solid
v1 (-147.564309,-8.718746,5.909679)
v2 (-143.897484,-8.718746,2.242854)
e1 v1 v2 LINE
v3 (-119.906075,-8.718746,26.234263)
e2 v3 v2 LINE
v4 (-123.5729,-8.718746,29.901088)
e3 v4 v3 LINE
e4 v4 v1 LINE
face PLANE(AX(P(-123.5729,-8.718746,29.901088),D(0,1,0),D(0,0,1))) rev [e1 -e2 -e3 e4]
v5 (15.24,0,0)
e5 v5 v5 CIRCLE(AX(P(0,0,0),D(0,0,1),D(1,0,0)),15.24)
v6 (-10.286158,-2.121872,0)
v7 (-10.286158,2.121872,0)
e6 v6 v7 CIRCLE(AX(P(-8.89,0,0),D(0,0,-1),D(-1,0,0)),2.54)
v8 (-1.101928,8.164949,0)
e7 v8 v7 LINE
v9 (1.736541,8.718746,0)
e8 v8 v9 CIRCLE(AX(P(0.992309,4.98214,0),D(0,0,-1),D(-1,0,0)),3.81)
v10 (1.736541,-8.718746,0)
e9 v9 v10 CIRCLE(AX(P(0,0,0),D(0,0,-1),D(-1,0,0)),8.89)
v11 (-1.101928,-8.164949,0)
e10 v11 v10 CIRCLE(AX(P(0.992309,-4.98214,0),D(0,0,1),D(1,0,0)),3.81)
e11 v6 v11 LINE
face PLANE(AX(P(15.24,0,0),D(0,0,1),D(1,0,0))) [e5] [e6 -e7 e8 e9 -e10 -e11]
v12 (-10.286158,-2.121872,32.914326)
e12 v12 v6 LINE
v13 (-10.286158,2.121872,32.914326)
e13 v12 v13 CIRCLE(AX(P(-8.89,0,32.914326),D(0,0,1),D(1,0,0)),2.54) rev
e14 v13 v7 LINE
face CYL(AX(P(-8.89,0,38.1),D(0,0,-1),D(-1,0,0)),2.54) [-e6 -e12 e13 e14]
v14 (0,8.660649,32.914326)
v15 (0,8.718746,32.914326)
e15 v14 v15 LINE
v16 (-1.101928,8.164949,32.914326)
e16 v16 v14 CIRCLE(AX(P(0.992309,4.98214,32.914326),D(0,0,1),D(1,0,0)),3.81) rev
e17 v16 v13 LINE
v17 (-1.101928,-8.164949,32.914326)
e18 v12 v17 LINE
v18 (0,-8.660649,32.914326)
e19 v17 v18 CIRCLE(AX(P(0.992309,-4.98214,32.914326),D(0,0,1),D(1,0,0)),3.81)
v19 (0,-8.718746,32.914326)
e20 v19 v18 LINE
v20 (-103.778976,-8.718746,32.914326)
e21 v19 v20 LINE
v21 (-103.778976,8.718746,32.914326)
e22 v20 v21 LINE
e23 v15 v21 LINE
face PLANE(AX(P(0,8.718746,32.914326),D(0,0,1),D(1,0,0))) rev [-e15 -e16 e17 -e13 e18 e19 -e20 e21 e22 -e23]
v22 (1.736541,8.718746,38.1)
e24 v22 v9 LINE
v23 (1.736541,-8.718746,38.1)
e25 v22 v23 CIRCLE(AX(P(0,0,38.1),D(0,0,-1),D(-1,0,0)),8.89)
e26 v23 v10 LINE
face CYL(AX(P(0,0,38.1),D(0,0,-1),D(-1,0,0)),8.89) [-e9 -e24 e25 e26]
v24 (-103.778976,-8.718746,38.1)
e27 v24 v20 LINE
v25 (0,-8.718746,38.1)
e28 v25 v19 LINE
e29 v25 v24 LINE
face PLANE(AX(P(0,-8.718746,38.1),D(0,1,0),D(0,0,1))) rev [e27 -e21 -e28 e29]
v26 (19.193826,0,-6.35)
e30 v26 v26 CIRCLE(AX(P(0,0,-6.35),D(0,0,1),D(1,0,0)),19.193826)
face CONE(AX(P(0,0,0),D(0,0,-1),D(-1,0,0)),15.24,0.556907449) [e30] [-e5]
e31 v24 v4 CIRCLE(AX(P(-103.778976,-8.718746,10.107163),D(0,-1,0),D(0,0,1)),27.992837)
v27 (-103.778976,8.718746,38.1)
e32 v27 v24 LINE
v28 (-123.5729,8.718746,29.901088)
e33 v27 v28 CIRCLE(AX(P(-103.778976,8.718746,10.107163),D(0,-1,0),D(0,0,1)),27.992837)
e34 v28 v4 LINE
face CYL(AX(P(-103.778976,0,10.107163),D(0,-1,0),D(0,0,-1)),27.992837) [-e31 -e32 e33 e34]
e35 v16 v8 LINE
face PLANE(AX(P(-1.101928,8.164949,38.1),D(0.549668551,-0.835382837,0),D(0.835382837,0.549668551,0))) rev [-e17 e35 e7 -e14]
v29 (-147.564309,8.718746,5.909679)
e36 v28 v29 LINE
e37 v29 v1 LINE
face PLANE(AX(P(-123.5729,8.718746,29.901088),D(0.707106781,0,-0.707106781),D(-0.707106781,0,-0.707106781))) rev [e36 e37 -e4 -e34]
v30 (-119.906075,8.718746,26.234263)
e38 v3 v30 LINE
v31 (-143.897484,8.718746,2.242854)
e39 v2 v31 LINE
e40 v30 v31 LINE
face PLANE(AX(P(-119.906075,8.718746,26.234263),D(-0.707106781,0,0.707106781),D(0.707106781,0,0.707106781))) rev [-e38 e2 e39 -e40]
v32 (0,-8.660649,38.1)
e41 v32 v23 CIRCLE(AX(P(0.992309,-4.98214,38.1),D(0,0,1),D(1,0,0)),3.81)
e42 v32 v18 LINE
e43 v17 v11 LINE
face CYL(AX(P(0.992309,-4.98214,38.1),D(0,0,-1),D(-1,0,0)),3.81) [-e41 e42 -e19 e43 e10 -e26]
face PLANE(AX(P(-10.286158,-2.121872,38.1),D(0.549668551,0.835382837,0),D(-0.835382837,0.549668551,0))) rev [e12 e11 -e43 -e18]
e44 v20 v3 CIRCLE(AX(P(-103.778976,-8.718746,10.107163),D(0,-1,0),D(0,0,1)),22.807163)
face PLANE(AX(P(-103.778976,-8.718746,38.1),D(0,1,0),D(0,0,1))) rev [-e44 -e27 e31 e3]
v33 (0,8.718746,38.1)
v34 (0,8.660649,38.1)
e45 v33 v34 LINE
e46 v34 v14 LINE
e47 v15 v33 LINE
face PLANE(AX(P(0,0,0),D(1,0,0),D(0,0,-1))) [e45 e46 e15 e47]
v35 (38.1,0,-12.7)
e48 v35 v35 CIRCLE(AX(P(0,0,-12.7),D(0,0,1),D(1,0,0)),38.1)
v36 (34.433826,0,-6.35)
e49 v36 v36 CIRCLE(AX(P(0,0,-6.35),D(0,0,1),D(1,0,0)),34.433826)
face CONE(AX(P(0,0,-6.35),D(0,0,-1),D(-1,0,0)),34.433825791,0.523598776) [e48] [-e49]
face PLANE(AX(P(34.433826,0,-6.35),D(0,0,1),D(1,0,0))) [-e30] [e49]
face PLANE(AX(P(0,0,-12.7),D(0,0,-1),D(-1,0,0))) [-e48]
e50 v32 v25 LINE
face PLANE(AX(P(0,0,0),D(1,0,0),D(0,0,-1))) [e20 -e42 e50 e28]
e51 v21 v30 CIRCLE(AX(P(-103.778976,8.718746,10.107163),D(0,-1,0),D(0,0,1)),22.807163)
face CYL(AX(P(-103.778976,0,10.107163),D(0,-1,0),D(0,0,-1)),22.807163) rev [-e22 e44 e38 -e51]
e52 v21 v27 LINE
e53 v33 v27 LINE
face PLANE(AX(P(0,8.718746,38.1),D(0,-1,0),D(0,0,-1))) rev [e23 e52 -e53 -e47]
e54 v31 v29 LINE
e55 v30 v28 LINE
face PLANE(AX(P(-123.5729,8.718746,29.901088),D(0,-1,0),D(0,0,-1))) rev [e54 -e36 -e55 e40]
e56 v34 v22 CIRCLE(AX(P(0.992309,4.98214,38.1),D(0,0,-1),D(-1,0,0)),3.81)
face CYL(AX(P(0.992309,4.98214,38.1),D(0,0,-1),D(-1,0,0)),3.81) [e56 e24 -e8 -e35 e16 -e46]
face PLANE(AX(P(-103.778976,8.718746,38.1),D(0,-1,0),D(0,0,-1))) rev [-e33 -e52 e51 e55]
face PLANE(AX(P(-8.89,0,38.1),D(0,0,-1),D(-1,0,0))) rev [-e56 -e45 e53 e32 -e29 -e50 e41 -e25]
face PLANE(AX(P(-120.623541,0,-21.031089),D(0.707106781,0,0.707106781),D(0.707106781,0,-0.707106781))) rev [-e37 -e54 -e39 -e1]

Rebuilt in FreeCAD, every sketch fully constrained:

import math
import FreeCAD as App
import Part
import Sketcher
Q = App.Units.Quantity

doc = App.newDocument("Part")
body = doc.addObject("PartDesign::Body", "Body")

# Sketch on XZ plane
sketch1 = body.newObject("Sketcher::SketchObject", "Sketch")
sketch1.AttachmentSupport = (doc.getObject("XZ_Plane"), [""])
sketch1.MapMode = "FlatFace"
sketch1.addGeometry([
    Part.LineSegment(App.Vector(0, -13, 0), App.Vector(0, 0, 0)),  # 0
    Part.LineSegment(App.Vector(0, 0, 0), App.Vector(15, 0, 0)),  # 1
    Part.LineSegment(App.Vector(15, 0, 0), App.Vector(19, -6, 0)),  # 2
    Part.LineSegment(App.Vector(19, -6, 0), App.Vector(34, -6, 0)),  # 3
    Part.LineSegment(App.Vector(34, -6, 0), App.Vector(38, -13, 0)),  # 4
    Part.LineSegment(App.Vector(38, -13, 0), App.Vector(0, -13, 0)),  # 5
], False)
sketch1.addConstraint([
    Sketcher.Constraint("Coincident", 0, 2, 1, 1),
    Sketcher.Constraint("Coincident", 1, 2, 2, 1),
    Sketcher.Constraint("Coincident", 2, 2, 3, 1),
    Sketcher.Constraint("Coincident", 3, 2, 4, 1),
    Sketcher.Constraint("Coincident", 4, 2, 5, 1),
    Sketcher.Constraint("Coincident", 5, 2, 0, 1),
    Sketcher.Constraint("Vertical", 0),
    Sketcher.Constraint("Horizontal", 1),
    Sketcher.Constraint("Horizontal", 3),
    Sketcher.Constraint("Horizontal", 5),
    Sketcher.Constraint("Coincident", 0, 2, -1, 1),
    Sketcher.Constraint("Equal", 1, 3),
    Sketcher.Constraint("DistanceX", 1, 1, 1, 2, Q("0.6 in")),
    Sketcher.Constraint("DistanceX", 5, 2, 5, 1, Q("1.5 in")),
    Sketcher.Constraint("DistanceY", 0, 1, 0, 2, Q("0.5 in")),
    Sketcher.Constraint("Angle", 4, Q("-60 deg")),
    Sketcher.Constraint("DistanceY", 2, 2, -1, 1, Q("0.25 in")),
])
revolution = body.newObject("PartDesign::Revolution", "Revolution")
revolution.Profile = sketch1
revolution.ReferenceAxis = (sketch1, ["V_Axis"])
revolution.Angle = 360

# Sketch on XY plane
sketch2 = body.newObject("Sketcher::SketchObject", "Sketch001")
sketch2.AttachmentSupport = (doc.getObject("XY_Plane"), [""])
sketch2.MapMode = "FlatFace"
sketch2.addGeometry([
    Part.LineSegment(App.Vector(-1.1, 8.2, 0), App.Vector(-10.3, 2.1, 0)),  # 0
    Part.ArcOfCircle(Part.Circle(App.Vector(-8.9, 0, 0), App.Vector(0, 0, 1), 2.5), math.radians(123), math.radians(237)),  # 1
    Part.LineSegment(App.Vector(-10.3, -2.1, 0), App.Vector(-1.1, -8.2, 0)),  # 2
    Part.ArcOfCircle(Part.Circle(App.Vector(1, -5, 0), App.Vector(0, 0, 1), 3.8), math.radians(-123), math.radians(-79)),  # 3
    Part.ArcOfCircle(Part.Circle(App.Vector(0, 0, 0), App.Vector(0, 0, 1), 8.9), math.radians(-79), math.radians(79)),  # 4
    Part.ArcOfCircle(Part.Circle(App.Vector(1, 5, 0), App.Vector(0, 0, 1), 3.8), math.radians(79), math.radians(123)),  # 5
], False)
sketch2.addConstraint([
    Sketcher.Constraint("Tangent", 0, 2, 1, 1),
    Sketcher.Constraint("Tangent", 1, 2, 2, 1),
    Sketcher.Constraint("Tangent", 2, 2, 3, 1),
    Sketcher.Constraint("Tangent", 3, 2, 4, 1),
    Sketcher.Constraint("Tangent", 4, 2, 5, 1),
    Sketcher.Constraint("Tangent", 5, 2, 0, 1),
    Sketcher.Constraint("Coincident", 4, 3, -1, 1),
    Sketcher.Constraint("Equal", 3, 5),
    Sketcher.Constraint("Symmetric", 0, 2, 1, 2, -1),
    Sketcher.Constraint("Radius", 1, Q("0.1 in")),
    Sketcher.Constraint("Radius", 3, Q("0.15 in")),
    Sketcher.Constraint("Radius", 4, Q("0.35 in")),
    Sketcher.Constraint("DistanceX", 1, 3, -1, 1, Q("0.35 in")),
    Sketcher.Constraint("DistanceX", 1, 2, 3, 2, Q("12.022699 mm")),
])
pad1 = body.newObject("PartDesign::Pad", "Pad")
pad1.Profile = sketch2
pad1.Length = Q("1.5 in")

# Sketch on YZ plane
sketch3 = body.newObject("Sketcher::SketchObject", "Sketch002")
sketch3.AttachmentSupport = (doc.getObject("YZ_Plane"), [""])
sketch3.MapMode = "FlatFace"
sketch3.addGeometry([
    Part.LineSegment(App.Vector(9, 38, 0), App.Vector(-9, 38, 0)),
    Part.LineSegment(App.Vector(-9, 38, 0), App.Vector(-9, 33, 0)),
    Part.LineSegment(App.Vector(-9, 33, 0), App.Vector(9, 33, 0)),
    Part.LineSegment(App.Vector(9, 33, 0), App.Vector(9, 38, 0)),
], False)
sketch3.addConstraint([
    Sketcher.Constraint("Coincident", 0, 2, 1, 1),
    Sketcher.Constraint("Coincident", 1, 2, 2, 1),
    Sketcher.Constraint("Coincident", 2, 2, 3, 1),
    Sketcher.Constraint("Coincident", 3, 2, 0, 1),
    Sketcher.Constraint("Horizontal", 0),
    Sketcher.Constraint("Vertical", 1),
    Sketcher.Constraint("Horizontal", 2),
    Sketcher.Constraint("Vertical", 3),
    Sketcher.Constraint("DistanceY", -1, 1, 0, 2, Q("1.5 in")),
    Sketcher.Constraint("DistanceX", 0, 2, 0, 1, Q("17.437491 mm")),
    Sketcher.Constraint("DistanceY", 1, 2, 1, 1, Q("5.185674 mm")),
    Sketcher.Constraint("DistanceX", 0, 2, -1, 1, Q("8.718746 mm")),
])

# Sketch on XZ plane
sketch4 = body.newObject("Sketcher::SketchObject", "Sketch003")
sketch4.AttachmentSupport = (doc.getObject("XZ_Plane"), [""])
sketch4.MapMode = "FlatFace"
sketch4.addGeometry([
    Part.LineSegment(App.Vector(0, 36, 0), App.Vector(-104, 36, 0)),
    Part.ArcOfCircle(Part.Circle(App.Vector(-104, 10, 0), App.Vector(0, 0, 1), 25), math.radians(90), math.radians(135)),
    Part.LineSegment(App.Vector(-122, 28, 0), App.Vector(-146, 4, 0)),
], False)
sketch4.addConstraint([
    Sketcher.Constraint("Tangent", 0, 2, 1, 1),
    Sketcher.Constraint("Tangent", 1, 2, 2, 1),
    Sketcher.Constraint("Horizontal", 0),
    Sketcher.Constraint("PointOnObject", 0, 1, -2),
    Sketcher.Constraint("Radius", 1, Q("1 in")),
    Sketcher.Constraint("Angle", 2, Q("-135 deg")),
    Sketcher.Constraint("DistanceX", 0, 2, 0, 1, Q("103.778976 mm")),
    Sketcher.Constraint("DistanceX", 2, 2, 1, 2, Q("23.991409 mm")),
    Sketcher.Constraint("DistanceY", -1, 1, 1, 3, Q("10.107163 mm")),
])
doc.recompute()

additivepipe = body.newObject("PartDesign::AdditivePipe", "AdditivePipe")
additivepipe.Profile = sketch3
additivepipe.Spine = (sketch4, ["Edge1", "Edge2", "Edge3"])

doc.recompute()
